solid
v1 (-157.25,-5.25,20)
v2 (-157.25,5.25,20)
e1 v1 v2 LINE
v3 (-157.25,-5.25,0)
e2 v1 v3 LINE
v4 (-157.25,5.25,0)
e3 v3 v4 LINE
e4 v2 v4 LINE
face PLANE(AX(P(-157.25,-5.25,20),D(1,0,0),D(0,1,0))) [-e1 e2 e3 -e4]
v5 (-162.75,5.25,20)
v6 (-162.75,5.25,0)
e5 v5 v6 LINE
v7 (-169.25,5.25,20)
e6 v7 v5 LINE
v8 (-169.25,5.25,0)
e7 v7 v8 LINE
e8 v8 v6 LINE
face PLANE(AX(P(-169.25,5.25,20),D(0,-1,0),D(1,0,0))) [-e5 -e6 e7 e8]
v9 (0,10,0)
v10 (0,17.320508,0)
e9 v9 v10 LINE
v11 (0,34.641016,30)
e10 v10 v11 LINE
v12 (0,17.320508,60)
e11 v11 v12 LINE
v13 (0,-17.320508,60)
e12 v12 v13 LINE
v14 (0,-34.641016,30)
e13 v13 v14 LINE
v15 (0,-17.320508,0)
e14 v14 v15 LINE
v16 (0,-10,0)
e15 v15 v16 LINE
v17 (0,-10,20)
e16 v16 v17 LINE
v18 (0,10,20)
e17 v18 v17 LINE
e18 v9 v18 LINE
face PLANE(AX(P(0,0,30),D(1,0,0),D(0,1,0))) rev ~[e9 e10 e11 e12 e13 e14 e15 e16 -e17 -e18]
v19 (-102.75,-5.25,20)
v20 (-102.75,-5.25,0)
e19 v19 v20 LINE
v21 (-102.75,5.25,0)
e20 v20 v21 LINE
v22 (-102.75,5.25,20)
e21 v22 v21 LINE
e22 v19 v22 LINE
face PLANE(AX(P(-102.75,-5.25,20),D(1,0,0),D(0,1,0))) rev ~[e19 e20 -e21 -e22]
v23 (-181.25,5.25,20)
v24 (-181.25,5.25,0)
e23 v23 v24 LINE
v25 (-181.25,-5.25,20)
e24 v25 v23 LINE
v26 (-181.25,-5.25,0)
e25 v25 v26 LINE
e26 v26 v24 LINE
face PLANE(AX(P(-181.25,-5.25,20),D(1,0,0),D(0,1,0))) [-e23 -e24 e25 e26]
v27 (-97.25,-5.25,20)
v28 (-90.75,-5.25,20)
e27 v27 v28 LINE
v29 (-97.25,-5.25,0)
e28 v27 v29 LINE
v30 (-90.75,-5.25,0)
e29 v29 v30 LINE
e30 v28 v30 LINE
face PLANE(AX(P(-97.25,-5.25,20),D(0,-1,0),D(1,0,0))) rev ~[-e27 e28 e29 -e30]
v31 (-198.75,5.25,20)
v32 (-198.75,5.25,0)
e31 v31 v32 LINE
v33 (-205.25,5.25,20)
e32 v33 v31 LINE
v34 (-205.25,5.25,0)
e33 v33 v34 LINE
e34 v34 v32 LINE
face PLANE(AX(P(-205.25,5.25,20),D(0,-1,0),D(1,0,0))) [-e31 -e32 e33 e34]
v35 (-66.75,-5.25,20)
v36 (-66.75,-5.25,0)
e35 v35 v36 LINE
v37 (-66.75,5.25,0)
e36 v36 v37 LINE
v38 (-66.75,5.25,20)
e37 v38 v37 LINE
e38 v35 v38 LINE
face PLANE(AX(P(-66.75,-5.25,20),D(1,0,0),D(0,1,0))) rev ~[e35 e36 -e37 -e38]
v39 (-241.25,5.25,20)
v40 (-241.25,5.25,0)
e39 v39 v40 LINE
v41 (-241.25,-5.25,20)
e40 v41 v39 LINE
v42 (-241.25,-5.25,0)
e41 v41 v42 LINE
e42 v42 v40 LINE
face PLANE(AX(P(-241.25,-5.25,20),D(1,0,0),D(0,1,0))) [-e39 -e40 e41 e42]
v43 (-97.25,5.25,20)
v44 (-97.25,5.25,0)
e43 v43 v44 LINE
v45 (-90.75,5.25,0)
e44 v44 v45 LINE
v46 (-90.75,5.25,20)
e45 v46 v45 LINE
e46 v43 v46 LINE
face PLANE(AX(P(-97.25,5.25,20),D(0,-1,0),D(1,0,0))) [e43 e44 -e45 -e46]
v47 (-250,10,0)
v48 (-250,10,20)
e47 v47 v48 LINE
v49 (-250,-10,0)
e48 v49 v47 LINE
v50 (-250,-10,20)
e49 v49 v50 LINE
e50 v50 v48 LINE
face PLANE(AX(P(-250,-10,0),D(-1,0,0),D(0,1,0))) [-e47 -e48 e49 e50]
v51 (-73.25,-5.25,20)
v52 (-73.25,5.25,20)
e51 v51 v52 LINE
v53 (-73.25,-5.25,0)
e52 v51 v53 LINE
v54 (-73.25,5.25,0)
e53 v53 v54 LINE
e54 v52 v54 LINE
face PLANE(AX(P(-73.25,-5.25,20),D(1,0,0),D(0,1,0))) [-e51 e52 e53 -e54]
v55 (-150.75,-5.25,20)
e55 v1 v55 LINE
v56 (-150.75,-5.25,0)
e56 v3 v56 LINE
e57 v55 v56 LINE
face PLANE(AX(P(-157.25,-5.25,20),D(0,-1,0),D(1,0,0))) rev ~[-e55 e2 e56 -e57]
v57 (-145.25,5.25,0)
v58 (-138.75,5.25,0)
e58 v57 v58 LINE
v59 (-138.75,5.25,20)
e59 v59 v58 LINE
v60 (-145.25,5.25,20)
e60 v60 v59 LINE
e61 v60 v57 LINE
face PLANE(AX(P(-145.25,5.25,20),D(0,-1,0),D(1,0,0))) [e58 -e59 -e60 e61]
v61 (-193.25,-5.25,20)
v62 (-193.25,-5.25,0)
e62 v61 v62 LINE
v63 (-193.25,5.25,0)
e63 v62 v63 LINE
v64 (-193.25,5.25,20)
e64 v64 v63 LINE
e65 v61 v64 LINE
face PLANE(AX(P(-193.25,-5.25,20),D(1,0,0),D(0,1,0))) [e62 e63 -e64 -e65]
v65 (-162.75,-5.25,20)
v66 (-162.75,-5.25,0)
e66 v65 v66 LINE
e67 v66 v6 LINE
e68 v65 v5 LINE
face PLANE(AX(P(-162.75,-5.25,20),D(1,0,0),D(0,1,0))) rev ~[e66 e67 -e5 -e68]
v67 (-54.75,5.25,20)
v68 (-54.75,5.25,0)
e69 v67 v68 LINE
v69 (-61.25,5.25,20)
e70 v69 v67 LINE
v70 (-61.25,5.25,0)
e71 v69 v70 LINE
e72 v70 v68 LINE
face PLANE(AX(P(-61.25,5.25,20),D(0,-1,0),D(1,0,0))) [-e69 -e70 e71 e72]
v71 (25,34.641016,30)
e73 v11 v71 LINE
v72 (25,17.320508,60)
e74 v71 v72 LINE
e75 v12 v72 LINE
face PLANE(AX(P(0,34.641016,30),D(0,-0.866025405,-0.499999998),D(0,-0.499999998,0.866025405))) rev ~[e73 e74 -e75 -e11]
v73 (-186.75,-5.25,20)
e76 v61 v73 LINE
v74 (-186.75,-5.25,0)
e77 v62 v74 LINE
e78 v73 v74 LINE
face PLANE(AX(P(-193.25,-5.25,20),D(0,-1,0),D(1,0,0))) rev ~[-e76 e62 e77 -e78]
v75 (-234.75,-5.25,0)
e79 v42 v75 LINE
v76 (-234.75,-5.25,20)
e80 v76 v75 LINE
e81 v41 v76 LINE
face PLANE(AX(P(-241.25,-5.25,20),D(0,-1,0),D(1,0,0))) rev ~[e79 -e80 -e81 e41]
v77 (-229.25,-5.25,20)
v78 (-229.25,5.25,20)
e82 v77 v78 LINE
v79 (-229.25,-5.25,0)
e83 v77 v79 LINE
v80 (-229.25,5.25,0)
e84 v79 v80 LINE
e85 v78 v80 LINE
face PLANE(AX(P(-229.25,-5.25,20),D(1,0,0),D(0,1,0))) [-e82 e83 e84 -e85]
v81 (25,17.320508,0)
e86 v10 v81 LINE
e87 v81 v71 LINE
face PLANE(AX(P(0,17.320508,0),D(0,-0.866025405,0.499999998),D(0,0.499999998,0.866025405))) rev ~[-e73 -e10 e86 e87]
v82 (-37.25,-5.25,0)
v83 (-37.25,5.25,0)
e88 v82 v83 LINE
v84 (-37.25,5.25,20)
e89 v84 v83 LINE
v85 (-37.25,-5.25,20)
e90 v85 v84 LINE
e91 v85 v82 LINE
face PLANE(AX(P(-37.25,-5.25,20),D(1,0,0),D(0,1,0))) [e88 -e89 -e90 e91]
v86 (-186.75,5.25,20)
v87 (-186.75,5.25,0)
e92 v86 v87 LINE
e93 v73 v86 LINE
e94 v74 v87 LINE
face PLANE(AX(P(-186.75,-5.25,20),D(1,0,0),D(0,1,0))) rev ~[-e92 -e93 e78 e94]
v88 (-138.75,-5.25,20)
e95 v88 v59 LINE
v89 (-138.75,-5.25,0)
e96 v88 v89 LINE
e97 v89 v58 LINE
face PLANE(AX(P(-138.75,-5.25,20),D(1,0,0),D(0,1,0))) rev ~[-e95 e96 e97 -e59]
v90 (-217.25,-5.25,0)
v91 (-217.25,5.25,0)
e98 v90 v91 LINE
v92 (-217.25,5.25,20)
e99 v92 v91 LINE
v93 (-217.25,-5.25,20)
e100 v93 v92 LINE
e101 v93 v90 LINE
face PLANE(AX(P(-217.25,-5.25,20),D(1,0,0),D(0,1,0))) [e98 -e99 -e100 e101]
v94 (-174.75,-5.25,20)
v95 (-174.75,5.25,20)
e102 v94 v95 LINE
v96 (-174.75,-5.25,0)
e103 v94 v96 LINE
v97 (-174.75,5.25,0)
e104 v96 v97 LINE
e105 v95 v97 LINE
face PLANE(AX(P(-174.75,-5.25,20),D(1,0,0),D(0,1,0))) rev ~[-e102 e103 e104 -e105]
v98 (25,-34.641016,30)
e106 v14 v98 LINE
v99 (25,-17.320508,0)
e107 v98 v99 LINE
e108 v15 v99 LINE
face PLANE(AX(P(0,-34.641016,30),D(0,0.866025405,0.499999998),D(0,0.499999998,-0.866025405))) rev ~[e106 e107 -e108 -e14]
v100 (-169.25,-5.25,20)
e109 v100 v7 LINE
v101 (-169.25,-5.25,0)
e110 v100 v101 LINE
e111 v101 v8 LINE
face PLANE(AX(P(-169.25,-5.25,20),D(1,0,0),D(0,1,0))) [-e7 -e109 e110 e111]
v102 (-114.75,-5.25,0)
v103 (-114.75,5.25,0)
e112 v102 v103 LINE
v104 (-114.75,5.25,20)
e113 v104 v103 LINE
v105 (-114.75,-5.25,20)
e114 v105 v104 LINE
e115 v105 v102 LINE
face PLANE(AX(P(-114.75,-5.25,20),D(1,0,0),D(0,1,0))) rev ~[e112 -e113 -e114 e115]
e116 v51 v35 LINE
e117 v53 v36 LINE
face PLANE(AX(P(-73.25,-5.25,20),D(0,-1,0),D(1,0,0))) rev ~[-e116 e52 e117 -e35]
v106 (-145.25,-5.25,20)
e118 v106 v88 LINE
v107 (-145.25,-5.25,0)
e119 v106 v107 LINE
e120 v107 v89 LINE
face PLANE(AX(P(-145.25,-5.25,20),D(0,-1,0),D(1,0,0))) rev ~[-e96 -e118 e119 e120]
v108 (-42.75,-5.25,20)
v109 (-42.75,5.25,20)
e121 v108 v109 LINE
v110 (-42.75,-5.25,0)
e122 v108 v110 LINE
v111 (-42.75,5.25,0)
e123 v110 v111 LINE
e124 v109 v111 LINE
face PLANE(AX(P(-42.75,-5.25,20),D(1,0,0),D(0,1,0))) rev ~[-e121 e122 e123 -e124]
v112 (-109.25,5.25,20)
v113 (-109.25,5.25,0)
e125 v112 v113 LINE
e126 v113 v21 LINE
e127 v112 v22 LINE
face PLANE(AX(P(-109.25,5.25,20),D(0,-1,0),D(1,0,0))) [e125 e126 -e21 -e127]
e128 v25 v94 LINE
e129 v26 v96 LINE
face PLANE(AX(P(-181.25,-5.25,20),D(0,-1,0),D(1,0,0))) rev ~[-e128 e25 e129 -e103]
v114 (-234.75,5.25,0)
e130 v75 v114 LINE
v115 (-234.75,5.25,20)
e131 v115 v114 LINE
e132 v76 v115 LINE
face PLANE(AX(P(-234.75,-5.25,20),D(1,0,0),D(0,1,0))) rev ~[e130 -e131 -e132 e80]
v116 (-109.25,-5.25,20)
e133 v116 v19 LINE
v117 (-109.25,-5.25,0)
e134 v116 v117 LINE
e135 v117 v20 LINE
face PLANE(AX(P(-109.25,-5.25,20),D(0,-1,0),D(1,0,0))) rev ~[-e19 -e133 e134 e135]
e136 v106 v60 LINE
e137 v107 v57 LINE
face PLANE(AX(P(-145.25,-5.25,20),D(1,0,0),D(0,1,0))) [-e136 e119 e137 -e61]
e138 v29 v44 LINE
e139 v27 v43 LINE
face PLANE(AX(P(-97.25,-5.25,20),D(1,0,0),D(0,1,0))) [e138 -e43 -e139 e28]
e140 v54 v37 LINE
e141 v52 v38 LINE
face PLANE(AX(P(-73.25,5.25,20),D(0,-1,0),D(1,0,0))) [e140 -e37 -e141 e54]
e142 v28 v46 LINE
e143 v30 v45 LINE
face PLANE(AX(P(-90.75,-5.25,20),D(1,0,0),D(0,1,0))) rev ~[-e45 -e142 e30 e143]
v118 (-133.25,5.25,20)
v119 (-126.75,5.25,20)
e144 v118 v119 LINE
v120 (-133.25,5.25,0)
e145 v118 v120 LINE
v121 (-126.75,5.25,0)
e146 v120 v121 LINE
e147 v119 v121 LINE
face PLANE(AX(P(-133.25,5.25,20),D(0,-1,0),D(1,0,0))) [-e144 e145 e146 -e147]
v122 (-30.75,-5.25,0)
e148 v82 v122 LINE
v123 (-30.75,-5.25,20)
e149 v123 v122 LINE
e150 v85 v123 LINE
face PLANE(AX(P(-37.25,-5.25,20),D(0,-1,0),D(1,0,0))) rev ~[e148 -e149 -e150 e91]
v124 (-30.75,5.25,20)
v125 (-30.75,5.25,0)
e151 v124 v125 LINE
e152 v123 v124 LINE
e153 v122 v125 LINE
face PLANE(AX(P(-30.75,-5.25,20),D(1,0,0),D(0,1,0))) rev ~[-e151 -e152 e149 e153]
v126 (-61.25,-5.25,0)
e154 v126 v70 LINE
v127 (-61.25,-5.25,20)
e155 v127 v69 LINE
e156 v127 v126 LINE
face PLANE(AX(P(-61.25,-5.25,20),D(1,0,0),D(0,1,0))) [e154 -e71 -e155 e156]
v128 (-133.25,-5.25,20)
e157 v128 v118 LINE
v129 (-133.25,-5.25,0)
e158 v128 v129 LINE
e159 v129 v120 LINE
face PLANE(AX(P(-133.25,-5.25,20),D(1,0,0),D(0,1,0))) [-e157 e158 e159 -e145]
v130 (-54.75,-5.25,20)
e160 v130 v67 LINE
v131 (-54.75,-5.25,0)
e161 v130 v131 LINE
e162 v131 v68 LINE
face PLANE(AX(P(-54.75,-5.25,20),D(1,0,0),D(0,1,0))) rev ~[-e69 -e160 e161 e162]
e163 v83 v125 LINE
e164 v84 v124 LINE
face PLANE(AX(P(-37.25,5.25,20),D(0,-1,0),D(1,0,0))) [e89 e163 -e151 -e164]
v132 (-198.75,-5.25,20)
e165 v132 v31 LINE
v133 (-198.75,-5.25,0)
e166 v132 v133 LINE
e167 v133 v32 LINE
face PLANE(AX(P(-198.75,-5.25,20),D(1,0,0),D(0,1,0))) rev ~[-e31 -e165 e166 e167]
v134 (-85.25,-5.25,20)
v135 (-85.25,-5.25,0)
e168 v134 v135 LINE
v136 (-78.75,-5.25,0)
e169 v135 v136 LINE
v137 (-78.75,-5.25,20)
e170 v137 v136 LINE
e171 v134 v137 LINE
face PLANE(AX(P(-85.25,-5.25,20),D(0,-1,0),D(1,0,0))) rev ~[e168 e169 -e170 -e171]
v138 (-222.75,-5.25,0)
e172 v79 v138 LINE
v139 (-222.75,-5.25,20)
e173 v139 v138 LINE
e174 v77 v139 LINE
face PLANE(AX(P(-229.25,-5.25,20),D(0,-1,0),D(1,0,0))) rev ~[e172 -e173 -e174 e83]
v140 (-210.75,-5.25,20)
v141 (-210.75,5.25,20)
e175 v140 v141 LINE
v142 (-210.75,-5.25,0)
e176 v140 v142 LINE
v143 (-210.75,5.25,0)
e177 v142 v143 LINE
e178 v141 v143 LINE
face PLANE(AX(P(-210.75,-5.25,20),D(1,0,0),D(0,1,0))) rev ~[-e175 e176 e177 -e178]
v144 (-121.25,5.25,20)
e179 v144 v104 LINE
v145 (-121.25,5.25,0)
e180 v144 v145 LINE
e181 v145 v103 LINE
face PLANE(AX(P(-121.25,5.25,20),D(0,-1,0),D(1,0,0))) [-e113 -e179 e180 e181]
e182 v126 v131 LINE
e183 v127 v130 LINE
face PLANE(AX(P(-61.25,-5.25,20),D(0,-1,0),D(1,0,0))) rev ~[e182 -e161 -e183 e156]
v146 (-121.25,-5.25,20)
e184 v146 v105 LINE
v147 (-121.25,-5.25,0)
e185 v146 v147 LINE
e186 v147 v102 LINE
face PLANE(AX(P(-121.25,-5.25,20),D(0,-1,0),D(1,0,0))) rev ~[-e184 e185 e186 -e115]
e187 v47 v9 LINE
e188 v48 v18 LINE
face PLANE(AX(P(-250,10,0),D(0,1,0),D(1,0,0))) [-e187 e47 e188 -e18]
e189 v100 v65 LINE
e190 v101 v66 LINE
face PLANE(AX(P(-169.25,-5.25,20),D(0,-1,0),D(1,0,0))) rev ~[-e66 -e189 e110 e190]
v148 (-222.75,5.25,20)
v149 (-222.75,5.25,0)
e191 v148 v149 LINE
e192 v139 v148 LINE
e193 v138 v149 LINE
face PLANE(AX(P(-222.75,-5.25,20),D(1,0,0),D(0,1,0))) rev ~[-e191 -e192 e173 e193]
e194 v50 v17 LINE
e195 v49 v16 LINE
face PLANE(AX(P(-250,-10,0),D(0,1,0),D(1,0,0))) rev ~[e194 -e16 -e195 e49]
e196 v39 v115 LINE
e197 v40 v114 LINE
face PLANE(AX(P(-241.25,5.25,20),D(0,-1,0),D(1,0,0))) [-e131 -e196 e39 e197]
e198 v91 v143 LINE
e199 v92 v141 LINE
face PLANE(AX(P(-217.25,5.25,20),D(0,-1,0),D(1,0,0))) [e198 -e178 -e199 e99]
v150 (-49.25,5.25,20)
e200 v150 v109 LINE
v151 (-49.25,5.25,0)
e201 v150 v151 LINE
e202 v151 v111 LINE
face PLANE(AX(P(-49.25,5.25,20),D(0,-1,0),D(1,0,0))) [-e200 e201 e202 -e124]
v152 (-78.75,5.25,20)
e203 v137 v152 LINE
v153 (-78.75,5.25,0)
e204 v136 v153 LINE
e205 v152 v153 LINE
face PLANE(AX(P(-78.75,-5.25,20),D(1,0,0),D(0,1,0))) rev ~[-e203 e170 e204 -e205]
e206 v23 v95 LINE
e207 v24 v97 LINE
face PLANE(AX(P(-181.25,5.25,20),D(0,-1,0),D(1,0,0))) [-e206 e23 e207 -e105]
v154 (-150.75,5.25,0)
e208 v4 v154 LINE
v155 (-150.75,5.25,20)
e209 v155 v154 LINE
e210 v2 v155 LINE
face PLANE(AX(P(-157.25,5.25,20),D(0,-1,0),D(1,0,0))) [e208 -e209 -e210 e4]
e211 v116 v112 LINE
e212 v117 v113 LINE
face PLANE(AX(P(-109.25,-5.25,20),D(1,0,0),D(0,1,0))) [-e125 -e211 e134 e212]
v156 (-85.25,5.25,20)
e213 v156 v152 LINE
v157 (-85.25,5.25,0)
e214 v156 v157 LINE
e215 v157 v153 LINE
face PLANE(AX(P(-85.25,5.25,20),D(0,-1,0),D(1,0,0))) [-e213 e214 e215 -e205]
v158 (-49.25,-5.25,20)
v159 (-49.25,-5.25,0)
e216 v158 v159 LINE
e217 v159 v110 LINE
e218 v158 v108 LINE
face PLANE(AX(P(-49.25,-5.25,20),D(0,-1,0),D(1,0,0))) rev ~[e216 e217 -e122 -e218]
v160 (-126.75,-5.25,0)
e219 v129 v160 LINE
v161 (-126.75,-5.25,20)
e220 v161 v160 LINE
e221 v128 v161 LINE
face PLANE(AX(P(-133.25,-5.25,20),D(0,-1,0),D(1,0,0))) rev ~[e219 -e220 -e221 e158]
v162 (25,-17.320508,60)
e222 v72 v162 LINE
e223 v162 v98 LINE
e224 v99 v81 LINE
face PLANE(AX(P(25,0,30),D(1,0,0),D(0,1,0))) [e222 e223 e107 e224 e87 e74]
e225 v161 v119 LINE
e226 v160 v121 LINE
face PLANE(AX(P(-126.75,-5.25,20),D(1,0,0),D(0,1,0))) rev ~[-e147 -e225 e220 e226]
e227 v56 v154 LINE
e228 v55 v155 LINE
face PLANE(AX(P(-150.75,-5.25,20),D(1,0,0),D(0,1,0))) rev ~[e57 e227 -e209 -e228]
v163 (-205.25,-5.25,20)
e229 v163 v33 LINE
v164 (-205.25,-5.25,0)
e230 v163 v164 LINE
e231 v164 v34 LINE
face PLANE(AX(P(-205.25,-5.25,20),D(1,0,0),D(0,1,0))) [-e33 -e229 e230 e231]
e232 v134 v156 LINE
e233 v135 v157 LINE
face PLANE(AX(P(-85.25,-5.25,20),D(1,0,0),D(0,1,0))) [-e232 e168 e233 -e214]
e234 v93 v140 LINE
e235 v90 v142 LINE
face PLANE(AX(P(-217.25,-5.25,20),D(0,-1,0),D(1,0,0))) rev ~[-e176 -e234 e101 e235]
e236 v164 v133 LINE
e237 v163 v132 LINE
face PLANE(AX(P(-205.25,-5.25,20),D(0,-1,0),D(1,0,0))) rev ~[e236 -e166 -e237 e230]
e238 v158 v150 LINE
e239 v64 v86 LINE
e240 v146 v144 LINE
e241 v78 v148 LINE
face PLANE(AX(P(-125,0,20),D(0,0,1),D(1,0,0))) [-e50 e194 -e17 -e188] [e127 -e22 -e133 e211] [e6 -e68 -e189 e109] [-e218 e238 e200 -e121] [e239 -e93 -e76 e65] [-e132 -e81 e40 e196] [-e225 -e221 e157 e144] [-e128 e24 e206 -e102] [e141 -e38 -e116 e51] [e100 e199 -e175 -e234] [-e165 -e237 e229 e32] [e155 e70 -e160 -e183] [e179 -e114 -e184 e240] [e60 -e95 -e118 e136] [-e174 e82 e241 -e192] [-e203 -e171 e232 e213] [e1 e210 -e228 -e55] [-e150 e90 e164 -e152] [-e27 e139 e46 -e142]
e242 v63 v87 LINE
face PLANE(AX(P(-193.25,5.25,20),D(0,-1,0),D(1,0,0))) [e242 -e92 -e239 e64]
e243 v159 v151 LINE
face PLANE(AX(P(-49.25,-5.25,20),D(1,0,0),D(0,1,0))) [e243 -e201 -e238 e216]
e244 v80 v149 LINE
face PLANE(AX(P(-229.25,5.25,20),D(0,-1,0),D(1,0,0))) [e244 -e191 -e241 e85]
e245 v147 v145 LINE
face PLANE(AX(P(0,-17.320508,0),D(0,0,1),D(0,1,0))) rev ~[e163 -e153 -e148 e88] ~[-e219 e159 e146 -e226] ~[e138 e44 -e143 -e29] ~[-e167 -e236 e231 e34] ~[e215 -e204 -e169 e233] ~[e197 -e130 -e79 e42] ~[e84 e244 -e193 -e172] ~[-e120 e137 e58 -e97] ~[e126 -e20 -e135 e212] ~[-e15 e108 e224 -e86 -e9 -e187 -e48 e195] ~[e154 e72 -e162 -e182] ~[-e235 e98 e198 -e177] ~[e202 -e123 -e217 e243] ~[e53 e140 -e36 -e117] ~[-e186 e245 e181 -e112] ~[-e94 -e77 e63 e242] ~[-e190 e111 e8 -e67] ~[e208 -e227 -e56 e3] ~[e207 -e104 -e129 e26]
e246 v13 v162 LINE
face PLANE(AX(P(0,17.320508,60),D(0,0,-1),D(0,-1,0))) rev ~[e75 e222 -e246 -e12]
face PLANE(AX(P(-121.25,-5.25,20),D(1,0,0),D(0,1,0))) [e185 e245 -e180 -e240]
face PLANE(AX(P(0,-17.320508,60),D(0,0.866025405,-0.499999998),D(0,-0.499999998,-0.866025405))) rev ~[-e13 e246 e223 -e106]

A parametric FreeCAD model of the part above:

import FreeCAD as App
import Part
import Sketcher
Q = App.Units.Quantity

doc = App.newDocument("Part")
params = doc.addObject("Spreadsheet::Sheet", "Params")
for row, (alias, value) in enumerate([
    ("pad1_length", "25 mm"),
    ("sketch2_width", "250 mm"),
    ("sketch2_height", "20 mm"),
    ("pad2_length", "20 mm"),
    ("sketch3_width", "6.5 mm"),
    ("sketch3_height", "10.5 mm"),
    ("pocket1_length", "100 mm"),
    ("pad3_length", "20 mm"),
], start=1):
    params.set(f"A{row}", alias)
    params.set(f"B{row}", "=" + value)
    params.setAlias(f"B{row}", alias)

body = doc.addObject("PartDesign::Body", "Body")

sketch1 = doc.addObject("Sketcher::SketchObject", "Sketch")
body.addObject(sketch1)
sketch1.AttachmentSupport = (doc.YZ_Plane, [""])
sketch1.MapMode = "FlatFace"
sketch1.addGeometry(Part.LineSegment(App.Vector(-17, 0, 0), App.Vector(17, 0, 0)), False)
sketch1.addGeometry(Part.LineSegment(App.Vector(17, 0, 0), App.Vector(35, 30, 0)), False)
sketch1.addGeometry(Part.LineSegment(App.Vector(35, 30, 0), App.Vector(17, 60, 0)), False)
sketch1.addGeometry(Part.LineSegment(App.Vector(17, 60, 0), App.Vector(-17, 60, 0)), False)
sketch1.addGeometry(Part.LineSegment(App.Vector(-17, 60, 0), App.Vector(-35, 30, 0)), False)
sketch1.addGeometry(Part.LineSegment(App.Vector(-35, 30, 0), App.Vector(-17, 0, 0)), False)
sketch1.addConstraint(Sketcher.Constraint("Coincident", 0, 2, 1, 1))
sketch1.addConstraint(Sketcher.Constraint("Coincident", 1, 2, 2, 1))
sketch1.addConstraint(Sketcher.Constraint("Coincident", 2, 2, 3, 1))
sketch1.addConstraint(Sketcher.Constraint("Coincident", 3, 2, 4, 1))
sketch1.addConstraint(Sketcher.Constraint("Coincident", 4, 2, 5, 1))
sketch1.addConstraint(Sketcher.Constraint("Coincident", 5, 2, 0, 1))
sketch1.addConstraint(Sketcher.Constraint("Horizontal", 0))
sketch1.addConstraint(Sketcher.Constraint("Horizontal", 3))
sketch1.addConstraint(Sketcher.Constraint("Symmetric", 0, 2, 5, 2, -1, 1))
sketch1.addConstraint(Sketcher.Constraint("Symmetric", 1, 2, 4, 2, -2))
sketch1.addConstraint(Sketcher.Constraint("Parallel", 1, 4))
sketch1.addConstraint(Sketcher.Constraint("Parallel", 2, 5))
sketch1.addConstraint(Sketcher.Constraint("Vertical", 0, 2, 2, 2))
sketch1.addConstraint(Sketcher.Constraint("Angle", 1, Q("60 deg")))
sketch1.addConstraint(Sketcher.Constraint("DistanceY", -1, 1, 1, 2, 30.0))
sketch1.addConstraint(Sketcher.Constraint("DistanceX", 0, 1, 0, 2, 34.641016))
pad1 = doc.addObject("PartDesign::Pad", "Pad")
body.addObject(pad1)
pad1.Profile = sketch1
pad1.setExpression("Length", "Params.pad1_length")

sketch2 = doc.addObject("Sketcher::SketchObject", "Sketch001")
body.addObject(sketch2)
sketch2.AttachmentSupport = (doc.XY_Plane, [""])
sketch2.MapMode = "FlatFace"
sketch2.addGeometry(Part.LineSegment(App.Vector(-250, 10, 0), App.Vector(-250, -10, 0)), False)
sketch2.addGeometry(Part.LineSegment(App.Vector(-250, -10, 0), App.Vector(0, -10, 0)), False)
sketch2.addGeometry(Part.LineSegment(App.Vector(0, -10, 0), App.Vector(0, 10, 0)), False)
sketch2.addGeometry(Part.LineSegment(App.Vector(0, 10, 0), App.Vector(-250, 10, 0)), False)
sketch2.addConstraint(Sketcher.Constraint("Coincident", 0, 2, 1, 1))
sketch2.addConstraint(Sketcher.Constraint("Coincident", 1, 2, 2, 1))
sketch2.addConstraint(Sketcher.Constraint("Coincident", 2, 2, 3, 1))
sketch2.addConstraint(Sketcher.Constraint("Coincident", 3, 2, 0, 1))
sketch2.addConstraint(Sketcher.Constraint("Vertical", 0))
sketch2.addConstraint(Sketcher.Constraint("Horizontal", 1))
sketch2.addConstraint(Sketcher.Constraint("Vertical", 2))
sketch2.addConstraint(Sketcher.Constraint("Horizontal", 3))
sketch2.addConstraint(Sketcher.Constraint("Symmetric", 1, 2, 2, 2, -1, 1))
sketch2.addConstraint(Sketcher.Constraint("DistanceX", 1, 1, 1, 2, 250.0))
sketch2.addConstraint(Sketcher.Constraint("DistanceY", 0, 2, 0, 1, 20.0))
sketch2.setExpression("Constraints[9]", "Params.sketch2_width")
sketch2.setExpression("Constraints[10]", "Params.sketch2_height")
pad2 = doc.addObject("PartDesign::Pad", "Pad001")
body.addObject(pad2)
pad2.Profile = sketch2
pad2.setExpression("Length", "Params.pad2_length")

sketch3 = doc.addObject("Sketcher::SketchObject", "Sketch002")
body.addObject(sketch3)
sketch3.AttachmentSupport = (doc.XY_Plane, [""])
sketch3.MapMode = "FlatFace"
sketch3.AttachmentOffset = App.Placement(App.Vector(0, 0, 20), App.Rotation())
sketch3.addGeometry(Part.LineSegment(App.Vector(-13, 5, 0), App.Vector(-13, -5, 0)), False)
sketch3.addGeometry(Part.LineSegment(App.Vector(-13, -5, 0), App.Vector(-7, -5, 0)), False)
sketch3.addGeometry(Part.LineSegment(App.Vector(-7, -5, 0), App.Vector(-7, 5, 0)), False)
sketch3.addGeometry(Part.LineSegment(App.Vector(-7, 5, 0), App.Vector(-13, 5, 0)), False)
sketch3.addGeometry(Part.LineSegment(App.Vector(-25, 5, 0), App.Vector(-25, -5, 0)), False)
sketch3.addGeometry(Part.LineSegment(App.Vector(-25, -5, 0), App.Vector(-19, -5, 0)), False)
sketch3.addGeometry(Part.LineSegment(App.Vector(-19, -5, 0), App.Vector(-19, 5, 0)), False)
sketch3.addGeometry(Part.LineSegment(App.Vector(-19, 5, 0), App.Vector(-25, 5, 0)), False)
sketch3.addGeometry(Part.LineSegment(App.Vector(-37, 5, 0), App.Vector(-37, -5, 0)), False)
sketch3.addGeometry(Part.LineSegment(App.Vector(-37, -5, 0), App.Vector(-31, -5, 0)), False)
sketch3.addGeometry(Part.LineSegment(App.Vector(-31, -5, 0), App.Vector(-31, 5, 0)), False)
sketch3.addGeometry(Part.LineSegment(App.Vector(-31, 5, 0), App.Vector(-37, 5, 0)), False)
sketch3.addGeometry(Part.LineSegment(App.Vector(-49, 5, 0), App.Vector(-49, -5, 0)), False)
sketch3.addGeometry(Part.LineSegment(App.Vector(-49, -5, 0), App.Vector(-43, -5, 0)), False)
sketch3.addGeometry(Part.LineSegment(App.Vector(-43, -5, 0), App.Vector(-43, 5, 0)), False)
sketch3.addGeometry(Part.LineSegment(App.Vector(-43, 5, 0), App.Vector(-49, 5, 0)), False)
sketch3.addGeometry(Part.LineSegment(App.Vector(-61, 5, 0), App.Vector(-61, -5, 0)), False)
sketch3.addGeometry(Part.LineSegment(App.Vector(-61, -5, 0), App.Vector(-55, -5, 0)), False)
sketch3.addGeometry(Part.LineSegment(App.Vector(-55, -5, 0), App.Vector(-55, 5, 0)), False)
sketch3.addGeometry(Part.LineSegment(App.Vector(-55, 5, 0), App.Vector(-61, 5, 0)), False)
sketch3.addGeometry(Part.LineSegment(App.Vector(-73, 5, 0), App.Vector(-73, -5, 0)), False)
sketch3.addGeometry(Part.LineSegment(App.Vector(-73, -5, 0), App.Vector(-67, -5, 0)), False)
sketch3.addGeometry(Part.LineSegment(App.Vector(-67, -5, 0), App.Vector(-67, 5, 0)), False)
sketch3.addGeometry(Part.LineSegment(App.Vector(-67, 5, 0), App.Vector(-73, 5, 0)), False)
sketch3.addGeometry(Part.LineSegment(App.Vector(-85, 5, 0), App.Vector(-85, -5, 0)), False)
sketch3.addGeometry(Part.LineSegment(App.Vector(-85, -5, 0), App.Vector(-79, -5, 0)), False)
sketch3.addGeometry(Part.LineSegment(App.Vector(-79, -5, 0), App.Vector(-79, 5, 0)), False)
sketch3.addGeometry(Part.LineSegment(App.Vector(-79, 5, 0), App.Vector(-85, 5, 0)), False)
sketch3.addGeometry(Part.LineSegment(App.Vector(-97, 5, 0), App.Vector(-97, -5, 0)), False)
sketch3.addGeometry(Part.LineSegment(App.Vector(-97, -5, 0), App.Vector(-91, -5, 0)), False)
sketch3.addGeometry(Part.LineSegment(App.Vector(-91, -5, 0), App.Vector(-91, 5, 0)), False)
sketch3.addGeometry(Part.LineSegment(App.Vector(-91, 5, 0), App.Vector(-97, 5, 0)), False)
sketch3.addGeometry(Part.LineSegment(App.Vector(-109, 5, 0), App.Vector(-109, -5, 0)), False)
sketch3.addGeometry(Part.LineSegment(App.Vector(-109, -5, 0), App.Vector(-103, -5, 0)), False)
sketch3.addGeometry(Part.LineSegment(App.Vector(-103, -5, 0), App.Vector(-103, 5, 0)), False)
sketch3.addGeometry(Part.LineSegment(App.Vector(-103, 5, 0), App.Vector(-109, 5, 0)), False)
sketch3.addGeometry(Part.LineSegment(App.Vector(-121, 5, 0), App.Vector(-121, -5, 0)), False)
sketch3.addGeometry(Part.LineSegment(App.Vector(-121, -5, 0), App.Vector(-115, -5, 0)), False)
sketch3.addGeometry(Part.LineSegment(App.Vector(-115, -5, 0), App.Vector(-115, 5, 0)), False)
sketch3.addGeometry(Part.LineSegment(App.Vector(-115, 5, 0), App.Vector(-121, 5, 0)), False)
sketch3.addGeometry(Part.LineSegment(App.Vector(-133, 5, 0), App.Vector(-133, -5, 0)), False)
sketch3.addGeometry(Part.LineSegment(App.Vector(-133, -5, 0), App.Vector(-127, -5, 0)), False)
sketch3.addGeometry(Part.LineSegment(App.Vector(-127, -5, 0), App.Vector(-127, 5, 0)), False)
sketch3.addGeometry(Part.LineSegment(App.Vector(-127, 5, 0), App.Vector(-133, 5, 0)), False)
sketch3.addGeometry(Part.LineSegment(App.Vector(-145, 5, 0), App.Vector(-145, -5, 0)), False)
sketch3.addGeometry(Part.LineSegment(App.Vector(-145, -5, 0), App.Vector(-139, -5, 0)), False)
sketch3.addGeometry(Part.LineSegment(App.Vector(-139, -5, 0), App.Vector(-139, 5, 0)), False)
sketch3.addGeometry(Part.LineSegment(App.Vector(-139, 5, 0), App.Vector(-145, 5, 0)), False)
sketch3.addGeometry(Part.LineSegment(App.Vector(-157, 5, 0), App.Vector(-157, -5, 0)), False)
sketch3.addGeometry(Part.LineSegment(App.Vector(-157, -5, 0), App.Vector(-151, -5, 0)), False)
sketch3.addGeometry(Part.LineSegment(App.Vector(-151, -5, 0), App.Vector(-151, 5, 0)), False)
sketch3.addGeometry(Part.LineSegment(App.Vector(-151, 5, 0), App.Vector(-157, 5, 0)), False)
sketch3.addGeometry(Part.LineSegment(App.Vector(-169, 5, 0), App.Vector(-169, -5, 0)), False)
sketch3.addGeometry(Part.LineSegment(App.Vector(-169, -5, 0), App.Vector(-163, -5, 0)), False)
sketch3.addGeometry(Part.LineSegment(App.Vector(-163, -5, 0), App.Vector(-163, 5, 0)), False)
sketch3.addGeometry(Part.LineSegment(App.Vector(-163, 5, 0), App.Vector(-169, 5, 0)), False)
sketch3.addGeometry(Part.LineSegment(App.Vector(-181, 5, 0), App.Vector(-181, -5, 0)), False)
sketch3.addGeometry(Part.LineSegment(App.Vector(-181, -5, 0), App.Vector(-175, -5, 0)), False)
sketch3.addGeometry(Part.LineSegment(App.Vector(-175, -5, 0), App.Vector(-175, 5, 0)), False)
sketch3.addGeometry(Part.LineSegment(App.Vector(-175, 5, 0), App.Vector(-181, 5, 0)), False)
sketch3.addGeometry(Part.LineSegment(App.Vector(-193, 5, 0), App.Vector(-193, -5, 0)), False)
sketch3.addGeometry(Part.LineSegment(App.Vector(-193, -5, 0), App.Vector(-187, -5, 0)), False)
sketch3.addGeometry(Part.LineSegment(App.Vector(-187, -5, 0), App.Vector(-187, 5, 0)), False)
sketch3.addGeometry(Part.LineSegment(App.Vector(-187, 5, 0), App.Vector(-193, 5, 0)), False)
sketch3.addGeometry(Part.LineSegment(App.Vector(-205, 5, 0), App.Vector(-205, -5, 0)), False)
sketch3.addGeometry(Part.LineSegment(App.Vector(-205, -5, 0), App.Vector(-199, -5, 0)), False)
sketch3.addGeometry(Part.LineSegment(App.Vector(-199, -5, 0), App.Vector(-199, 5, 0)), False)
sketch3.addGeometry(Part.LineSegment(App.Vector(-199, 5, 0), App.Vector(-205, 5, 0)), False)
sketch3.addGeometry(Part.LineSegment(App.Vector(-217, 5, 0), App.Vector(-217, -5, 0)), False)
sketch3.addGeometry(Part.LineSegment(App.Vector(-217, -5, 0), App.Vector(-211, -5, 0)), False)
sketch3.addGeometry(Part.LineSegment(App.Vector(-211, -5, 0), App.Vector(-211, 5, 0)), False)
sketch3.addGeometry(Part.LineSegment(App.Vector(-211, 5, 0), App.Vector(-217, 5, 0)), False)
sketch3.addGeometry(Part.LineSegment(App.Vector(-229, 5, 0), App.Vector(-229, -5, 0)), False)
sketch3.addGeometry(Part.LineSegment(App.Vector(-229, -5, 0), App.Vector(-223, -5, 0)), False)
sketch3.addGeometry(Part.LineSegment(App.Vector(-223, -5, 0), App.Vector(-223, 5, 0)), False)
sketch3.addGeometry(Part.LineSegment(App.Vector(-223, 5, 0), App.Vector(-229, 5, 0)), False)
sketch3.addGeometry(Part.LineSegment(App.Vector(-241, 5, 0), App.Vector(-241, -5, 0)), False)
sketch3.addGeometry(Part.LineSegment(App.Vector(-241, -5, 0), App.Vector(-235, -5, 0)), False)
sketch3.addGeometry(Part.LineSegment(App.Vector(-235, -5, 0), App.Vector(-235, 5, 0)), False)
sketch3.addGeometry(Part.LineSegment(App.Vector(-235, 5, 0), App.Vector(-241, 5, 0)), False)
sketch3.addConstraint(Sketcher.Constraint("Coincident", 0, 2, 1, 1))
sketch3.addConstraint(Sketcher.Constraint("Coincident", 1, 2, 2, 1))
sketch3.addConstraint(Sketcher.Constraint("Coincident", 2, 2, 3, 1))
sketch3.addConstraint(Sketcher.Constraint("Coincident", 3, 2, 0, 1))
sketch3.addConstraint(Sketcher.Constraint("Coincident", 4, 2, 5, 1))
sketch3.addConstraint(Sketcher.Constraint("Coincident", 5, 2, 6, 1))
sketch3.addConstraint(Sketcher.Constraint("Coincident", 6, 2, 7, 1))
sketch3.addConstraint(Sketcher.Constraint("Coincident", 7, 2, 4, 1))
sketch3.addConstraint(Sketcher.Constraint("Coincident", 8, 2, 9, 1))
sketch3.addConstraint(Sketcher.Constraint("Coincident", 9, 2, 10, 1))
sketch3.addConstraint(Sketcher.Constraint("Coincident", 10, 2, 11, 1))
sketch3.addConstraint(Sketcher.Constraint("Coincident", 11, 2, 8, 1))
sketch3.addConstraint(Sketcher.Constraint("Coincident", 12, 2, 13, 1))
sketch3.addConstraint(Sketcher.Constraint("Coincident", 13, 2, 14, 1))
sketch3.addConstraint(Sketcher.Constraint("Coincident", 14, 2, 15, 1))
sketch3.addConstraint(Sketcher.Constraint("Coincident", 15, 2, 12, 1))
sketch3.addConstraint(Sketcher.Constraint("Coincident", 16, 2, 17, 1))
sketch3.addConstraint(Sketcher.Constraint("Coincident", 17, 2, 18, 1))
sketch3.addConstraint(Sketcher.Constraint("Coincident", 18, 2, 19, 1))
sketch3.addConstraint(Sketcher.Constraint("Coincident", 19, 2, 16, 1))
sketch3.addConstraint(Sketcher.Constraint("Coincident", 20, 2, 21, 1))
sketch3.addConstraint(Sketcher.Constraint("Coincident", 21, 2, 22, 1))
sketch3.addConstraint(Sketcher.Constraint("Coincident", 22, 2, 23, 1))
sketch3.addConstraint(Sketcher.Constraint("Coincident", 23, 2, 20, 1))
sketch3.addConstraint(Sketcher.Constraint("Coincident", 24, 2, 25, 1))
sketch3.addConstraint(Sketcher.Constraint("Coincident", 25, 2, 26, 1))
sketch3.addConstraint(Sketcher.Constraint("Coincident", 26, 2, 27, 1))
sketch3.addConstraint(Sketcher.Constraint("Coincident", 27, 2, 24, 1))
sketch3.addConstraint(Sketcher.Constraint("Coincident", 28, 2, 29, 1))
sketch3.addConstraint(Sketcher.Constraint("Coincident", 29, 2, 30, 1))
sketch3.addConstraint(Sketcher.Constraint("Coincident", 30, 2, 31, 1))
sketch3.addConstraint(Sketcher.Constraint("Coincident", 31, 2, 28, 1))
sketch3.addConstraint(Sketcher.Constraint("Coincident", 32, 2, 33, 1))
sketch3.addConstraint(Sketcher.Constraint("Coincident", 33, 2, 34, 1))
sketch3.addConstraint(Sketcher.Constraint("Coincident", 34, 2, 35, 1))
sketch3.addConstraint(Sketcher.Constraint("Coincident", 35, 2, 32, 1))
sketch3.addConstraint(Sketcher.Constraint("Coincident", 36, 2, 37, 1))
sketch3.addConstraint(Sketcher.Constraint("Coincident", 37, 2, 38, 1))
sketch3.addConstraint(Sketcher.Constraint("Coincident", 38, 2, 39, 1))
sketch3.addConstraint(Sketcher.Constraint("Coincident", 39, 2, 36, 1))
sketch3.addConstraint(Sketcher.Constraint("Coincident", 40, 2, 41, 1))
sketch3.addConstraint(Sketcher.Constraint("Coincident", 41, 2, 42, 1))
sketch3.addConstraint(Sketcher.Constraint("Coincident", 42, 2, 43, 1))
sketch3.addConstraint(Sketcher.Constraint("Coincident", 43, 2, 40, 1))
sketch3.addConstraint(Sketcher.Constraint("Coincident", 44, 2, 45, 1))
sketch3.addConstraint(Sketcher.Constraint("Coincident", 45, 2, 46, 1))
sketch3.addConstraint(Sketcher.Constraint("Coincident", 46, 2, 47, 1))
sketch3.addConstraint(Sketcher.Constraint("Coincident", 47, 2, 44, 1))
sketch3.addConstraint(Sketcher.Constraint("Coincident", 48, 2, 49, 1))
sketch3.addConstraint(Sketcher.Constraint("Coincident", 49, 2, 50, 1))
sketch3.addConstraint(Sketcher.Constraint("Coincident", 50, 2, 51, 1))
sketch3.addConstraint(Sketcher.Constraint("Coincident", 51, 2, 48, 1))
sketch3.addConstraint(Sketcher.Constraint("Coincident", 52, 2, 53, 1))
sketch3.addConstraint(Sketcher.Constraint("Coincident", 53, 2, 54, 1))
sketch3.addConstraint(Sketcher.Constraint("Coincident", 54, 2, 55, 1))
sketch3.addConstraint(Sketcher.Constraint("Coincident", 55, 2, 52, 1))
sketch3.addConstraint(Sketcher.Constraint("Coincident", 56, 2, 57, 1))
sketch3.addConstraint(Sketcher.Constraint("Coincident", 57, 2, 58, 1))
sketch3.addConstraint(Sketcher.Constraint("Coincident", 58, 2, 59, 1))
sketch3.addConstraint(Sketcher.Constraint("Coincident", 59, 2, 56, 1))
sketch3.addConstraint(Sketcher.Constraint("Coincident", 60, 2, 61, 1))
sketch3.addConstraint(Sketcher.Constraint("Coincident", 61, 2, 62, 1))
sketch3.addConstraint(Sketcher.Constraint("Coincident", 62, 2, 63, 1))
sketch3.addConstraint(Sketcher.Constraint("Coincident", 63, 2, 60, 1))
sketch3.addConstraint(Sketcher.Constraint("Coincident", 64, 2, 65, 1))
sketch3.addConstraint(Sketcher.Constraint("Coincident", 65, 2, 66, 1))
sketch3.addConstraint(Sketcher.Constraint("Coincident", 66, 2, 67, 1))
sketch3.addConstraint(Sketcher.Constraint("Coincident", 67, 2, 64, 1))
sketch3.addConstraint(Sketcher.Constraint("Coincident", 68, 2, 69, 1))
sketch3.addConstraint(Sketcher.Constraint("Coincident", 69, 2, 70, 1))
sketch3.addConstraint(Sketcher.Constraint("Coincident", 70, 2, 71, 1))
sketch3.addConstraint(Sketcher.Constraint("Coincident", 71, 2, 68, 1))
sketch3.addConstraint(Sketcher.Constraint("Coincident", 72, 2, 73, 1))
sketch3.addConstraint(Sketcher.Constraint("Coincident", 73, 2, 74, 1))
sketch3.addConstraint(Sketcher.Constraint("Coincident", 74, 2, 75, 1))
sketch3.addConstraint(Sketcher.Constraint("Coincident", 75, 2, 72, 1))
sketch3.addConstraint(Sketcher.Constraint("Coincident", 76, 2, 77, 1))
sketch3.addConstraint(Sketcher.Constraint("Coincident", 77, 2, 78, 1))
sketch3.addConstraint(Sketcher.Constraint("Coincident", 78, 2, 79, 1))
sketch3.addConstraint(Sketcher.Constraint("Coincident", 79, 2, 76, 1))
sketch3.addConstraint(Sketcher.Constraint("Vertical", 0))
sketch3.addConstraint(Sketcher.Constraint("Horizontal", 1))
sketch3.addConstraint(Sketcher.Constraint("Vertical", 2))
sketch3.addConstraint(Sketcher.Constraint("Horizontal", 3))
sketch3.addConstraint(Sketcher.Constraint("Vertical", 4))
sketch3.addConstraint(Sketcher.Constraint("Horizontal", 5))
sketch3.addConstraint(Sketcher.Constraint("Vertical", 6))
sketch3.addConstraint(Sketcher.Constraint("Horizontal", 7))
sketch3.addConstraint(Sketcher.Constraint("Vertical", 8))
sketch3.addConstraint(Sketcher.Constraint("Horizontal", 9))
sketch3.addConstraint(Sketcher.Constraint("Vertical", 10))
sketch3.addConstraint(Sketcher.Constraint("Horizontal", 11))
sketch3.addConstraint(Sketcher.Constraint("Vertical", 12))
sketch3.addConstraint(Sketcher.Constraint("Horizontal", 13))
sketch3.addConstraint(Sketcher.Constraint("Vertical", 14))
sketch3.addConstraint(Sketcher.Constraint("Horizontal", 15))
sketch3.addConstraint(Sketcher.Constraint("Vertical", 16))
sketch3.addConstraint(Sketcher.Constraint("Horizontal", 17))
sketch3.addConstraint(Sketcher.Constraint("Vertical", 18))
sketch3.addConstraint(Sketcher.Constraint("Horizontal", 19))
sketch3.addConstraint(Sketcher.Constraint("Vertical", 20))
sketch3.addConstraint(Sketcher.Constraint("Horizontal", 21))
sketch3.addConstraint(Sketcher.Constraint("Vertical", 22))
sketch3.addConstraint(Sketcher.Constraint("Horizontal", 23))
sketch3.addConstraint(Sketcher.Constraint("Vertical", 24))
sketch3.addConstraint(Sketcher.Constraint("Horizontal", 25))
sketch3.addConstraint(Sketcher.Constraint("Vertical", 26))
sketch3.addConstraint(Sketcher.Constraint("Horizontal", 27))
sketch3.addConstraint(Sketcher.Constraint("Vertical", 28))
sketch3.addConstraint(Sketcher.Constraint("Horizontal", 29))
sketch3.addConstraint(Sketcher.Constraint("Vertical", 30))
sketch3.addConstraint(Sketcher.Constraint("Horizontal", 31))
sketch3.addConstraint(Sketcher.Constraint("Vertical", 32))
sketch3.addConstraint(Sketcher.Constraint("Horizontal", 33))
sketch3.addConstraint(Sketcher.Constraint("Vertical", 34))
sketch3.addConstraint(Sketcher.Constraint("Horizontal", 35))
sketch3.addConstraint(Sketcher.Constraint("Vertical", 36))
sketch3.addConstraint(Sketcher.Constraint("Horizontal", 37))
sketch3.addConstraint(Sketcher.Constraint("Vertical", 38))
sketch3.addConstraint(Sketcher.Constraint("Horizontal", 39))
sketch3.addConstraint(Sketcher.Constraint("Vertical", 40))
sketch3.addConstraint(Sketcher.Constraint("Horizontal", 41))
sketch3.addConstraint(Sketcher.Constraint("Vertical", 42))
sketch3.addConstraint(Sketcher.Constraint("Horizontal", 43))
sketch3.addConstraint(Sketcher.Constraint("Vertical", 44))
sketch3.addConstraint(Sketcher.Constraint("Horizontal", 45))
sketch3.addConstraint(Sketcher.Constraint("Vertical", 46))
sketch3.addConstraint(Sketcher.Constraint("Horizontal", 47))
sketch3.addConstraint(Sketcher.Constraint("Vertical", 48))
sketch3.addConstraint(Sketcher.Constraint("Horizontal", 49))
sketch3.addConstraint(Sketcher.Constraint("Vertical", 50))
sketch3.addConstraint(Sketcher.Constraint("Horizontal", 51))
sketch3.addConstraint(Sketcher.Constraint("Vertical", 52))
sketch3.addConstraint(Sketcher.Constraint("Horizontal", 53))
sketch3.addConstraint(Sketcher.Constraint("Vertical", 54))
sketch3.addConstraint(Sketcher.Constraint("Horizontal", 55))
sketch3.addConstraint(Sketcher.Constraint("Vertical", 56))
sketch3.addConstraint(Sketcher.Constraint("Horizontal", 57))
sketch3.addConstraint(Sketcher.Constraint("Vertical", 58))
sketch3.addConstraint(Sketcher.Constraint("Horizontal", 59))
sketch3.addConstraint(Sketcher.Constraint("Vertical", 60))
sketch3.addConstraint(Sketcher.Constraint("Horizontal", 61))
sketch3.addConstraint(Sketcher.Constraint("Vertical", 62))
sketch3.addConstraint(Sketcher.Constraint("Horizontal", 63))
sketch3.addConstraint(Sketcher.Constraint("Vertical", 64))
sketch3.addConstraint(Sketcher.Constraint("Horizontal", 65))
sketch3.addConstraint(Sketcher.Constraint("Vertical", 66))
sketch3.addConstraint(Sketcher.Constraint("Horizontal", 67))
sketch3.addConstraint(Sketcher.Constraint("Vertical", 68))
sketch3.addConstraint(Sketcher.Constraint("Horizontal", 69))
sketch3.addConstraint(Sketcher.Constraint("Vertical", 70))
sketch3.addConstraint(Sketcher.Constraint("Horizontal", 71))
sketch3.addConstraint(Sketcher.Constraint("Vertical", 72))
sketch3.addConstraint(Sketcher.Constraint("Horizontal", 73))
sketch3.addConstraint(Sketcher.Constraint("Vertical", 74))
sketch3.addConstraint(Sketcher.Constraint("Horizontal", 75))
sketch3.addConstraint(Sketcher.Constraint("Vertical", 76))
sketch3.addConstraint(Sketcher.Constraint("Horizontal", 77))
sketch3.addConstraint(Sketcher.Constraint("Vertical", 78))
sketch3.addConstraint(Sketcher.Constraint("Horizontal", 79))
sketch3.addConstraint(Sketcher.Constraint("Horizontal", 1, 2, 4, 2))
sketch3.addConstraint(Sketcher.Constraint("Horizontal", 3, 2, 6, 2))
sketch3.addConstraint(Sketcher.Constraint("Horizontal", 5, 2, 8, 2))
sketch3.addConstraint(Sketcher.Constraint("Horizontal", 7, 2, 10, 2))
sketch3.addConstraint(Sketcher.Constraint("Horizontal", 9, 2, 12, 2))
sketch3.addConstraint(Sketcher.Constraint("Horizontal", 11, 2, 14, 2))
sketch3.addConstraint(Sketcher.Constraint("Horizontal", 13, 2, 16, 2))
sketch3.addConstraint(Sketcher.Constraint("Horizontal", 15, 2, 18, 2))
sketch3.addConstraint(Sketcher.Constraint("Horizontal", 17, 2, 20, 2))
sketch3.addConstraint(Sketcher.Constraint("Horizontal", 19, 2, 22, 2))
sketch3.addConstraint(Sketcher.Constraint("Horizontal", 21, 2, 24, 2))
sketch3.addConstraint(Sketcher.Constraint("Horizontal", 23, 2, 26, 2))
sketch3.addConstraint(Sketcher.Constraint("Horizontal", 25, 2, 28, 2))
sketch3.addConstraint(Sketcher.Constraint("Horizontal", 27, 2, 30, 2))
sketch3.addConstraint(Sketcher.Constraint("Horizontal", 29, 2, 32, 2))
sketch3.addConstraint(Sketcher.Constraint("Horizontal", 31, 2, 34, 2))
sketch3.addConstraint(Sketcher.Constraint("Horizontal", 33, 2, 36, 2))
sketch3.addConstraint(Sketcher.Constraint("Horizontal", 35, 2, 38, 2))
sketch3.addConstraint(Sketcher.Constraint("Horizontal", 37, 2, 40, 2))
sketch3.addConstraint(Sketcher.Constraint("Horizontal", 39, 2, 42, 2))
sketch3.addConstraint(Sketcher.Constraint("Horizontal", 41, 2, 44, 2))
sketch3.addConstraint(Sketcher.Constraint("Horizontal", 43, 2, 46, 2))
sketch3.addConstraint(Sketcher.Constraint("Horizontal", 45, 2, 48, 2))
sketch3.addConstraint(Sketcher.Constraint("Horizontal", 47, 2, 50, 2))
sketch3.addConstraint(Sketcher.Constraint("Horizontal", 49, 2, 52, 2))
sketch3.addConstraint(Sketcher.Constraint("Horizontal", 51, 2, 54, 2))
sketch3.addConstraint(Sketcher.Constraint("Horizontal", 53, 2, 56, 2))
sketch3.addConstraint(Sketcher.Constraint("Horizontal", 55, 2, 58, 2))
sketch3.addConstraint(Sketcher.Constraint("Horizontal", 57, 2, 60, 2))
sketch3.addConstraint(Sketcher.Constraint("Horizontal", 59, 2, 62, 2))
sketch3.addConstraint(Sketcher.Constraint("Horizontal", 61, 2, 64, 2))
sketch3.addConstraint(Sketcher.Constraint("Horizontal", 63, 2, 66, 2))
sketch3.addConstraint(Sketcher.Constraint("Horizontal", 65, 2, 68, 2))
sketch3.addConstraint(Sketcher.Constraint("Horizontal", 67, 2, 70, 2))
sketch3.addConstraint(Sketcher.Constraint("Horizontal", 69, 2, 72, 2))
sketch3.addConstraint(Sketcher.Constraint("Horizontal", 71, 2, 74, 2))
sketch3.addConstraint(Sketcher.Constraint("Horizontal", 73, 2, 76, 2))
sketch3.addConstraint(Sketcher.Constraint("Horizontal", 75, 2, 78, 2))
sketch3.addConstraint(Sketcher.Constraint("Equal", 3, 5))
sketch3.addConstraint(Sketcher.Constraint("Equal", 7, 9))
sketch3.addConstraint(Sketcher.Constraint("Equal", 11, 13))
sketch3.addConstraint(Sketcher.Constraint("Equal", 15, 17))
sketch3.addConstraint(Sketcher.Constraint("Equal", 19, 21))
sketch3.addConstraint(Sketcher.Constraint("Equal", 23, 25))
sketch3.addConstraint(Sketcher.Constraint("Equal", 27, 29))
sketch3.addConstraint(Sketcher.Constraint("Equal", 31, 33))
sketch3.addConstraint(Sketcher.Constraint("Equal", 35, 37))
sketch3.addConstraint(Sketcher.Constraint("Equal", 39, 41))
sketch3.addConstraint(Sketcher.Constraint("Equal", 43, 45))
sketch3.addConstraint(Sketcher.Constraint("Equal", 47, 49))
sketch3.addConstraint(Sketcher.Constraint("Equal", 51, 53))
sketch3.addConstraint(Sketcher.Constraint("Equal", 55, 57))
sketch3.addConstraint(Sketcher.Constraint("Equal", 59, 61))
sketch3.addConstraint(Sketcher.Constraint("Equal", 63, 65))
sketch3.addConstraint(Sketcher.Constraint("Equal", 67, 69))
sketch3.addConstraint(Sketcher.Constraint("Equal", 71, 73))
sketch3.addConstraint(Sketcher.Constraint("Equal", 75, 77))
sketch3.addConstraint(Sketcher.Constraint("DistanceX", 1, 1, 1, 2, 6.5))
sketch3.addConstraint(Sketcher.Constraint("DistanceY", 0, 2, 0, 1, 10.5))
sketch3.addConstraint(Sketcher.Constraint("DistanceX", 0, 2, -1, 1, 13.25))
sketch3.addConstraint(Sketcher.Constraint("DistanceY", 0, 2, -1, 1, 5.25))
sketch3.addConstraint(Sketcher.Constraint("DistanceX", 4, 2, -1, 1, 25.25))
sketch3.addConstraint(Sketcher.Constraint("DistanceX", 8, 2, -1, 1, 37.25))
sketch3.addConstraint(Sketcher.Constraint("DistanceX", 12, 2, -1, 1, 49.25))
sketch3.addConstraint(Sketcher.Constraint("DistanceX", 16, 2, -1, 1, 61.25))
sketch3.addConstraint(Sketcher.Constraint("DistanceX", 20, 2, -1, 1, 73.25))
sketch3.addConstraint(Sketcher.Constraint("DistanceX", 24, 2, -1, 1, 85.25))
sketch3.addConstraint(Sketcher.Constraint("DistanceX", 28, 2, -1, 1, 97.25))
sketch3.addConstraint(Sketcher.Constraint("DistanceX", 32, 2, -1, 1, 109.25))
sketch3.addConstraint(Sketcher.Constraint("DistanceX", 36, 2, -1, 1, 121.25))
sketch3.addConstraint(Sketcher.Constraint("DistanceX", 40, 2, -1, 1, 133.25))
sketch3.addConstraint(Sketcher.Constraint("DistanceX", 44, 2, -1, 1, 145.25))
sketch3.addConstraint(Sketcher.Constraint("DistanceX", 48, 2, -1, 1, 157.25))
sketch3.addConstraint(Sketcher.Constraint("DistanceX", 52, 2, -1, 1, 169.25))
sketch3.addConstraint(Sketcher.Constraint("DistanceX", 56, 2, -1, 1, 181.25))
sketch3.addConstraint(Sketcher.Constraint("DistanceX", 60, 2, -1, 1, 193.25))
sketch3.addConstraint(Sketcher.Constraint("DistanceX", 64, 2, -1, 1, 205.25))
sketch3.addConstraint(Sketcher.Constraint("DistanceX", 68, 2, -1, 1, 217.25))
sketch3.addConstraint(Sketcher.Constraint("DistanceX", 72, 2, -1, 1, 229.25))
sketch3.addConstraint(Sketcher.Constraint("DistanceX", 76, 2, -1, 1, 241.25))
sketch3.setExpression("Constraints[217]", "Params.sketch3_width")
sketch3.setExpression("Constraints[218]", "Params.sketch3_height")
pocket1 = doc.addObject("PartDesign::Pocket", "Pocket")
body.addObject(pocket1)
pocket1.Profile = sketch3
pocket1.setExpression("Length", "Params.pocket1_length")

sketch4 = doc.addObject("Sketcher::SketchObject", "Sketch003")
body.addObject(sketch4)
sketch4.AttachmentSupport = (doc.XY_Plane, [""])
sketch4.MapMode = "FlatFace"
sketch4.addGeometry(Part.LineSegment(App.Vector(-28, 7, 0), App.Vector(-28, -7, 0)), False)
sketch4.addGeometry(Part.LineSegment(App.Vector(-28, -7, 0), App.Vector(0, -7, 0)), False)
sketch4.addGeometry(Part.LineSegment(App.Vector(0, -7, 0), App.Vector(0, 7, 0)), False)
sketch4.addGeometry(Part.LineSegment(App.Vector(0, 7, 0), App.Vector(-28, 7, 0)), False)
sketch4.addConstraint(Sketcher.Constraint("Coincident", 0, 2, 1, 1))
sketch4.addConstraint(Sketcher.Constraint("Coincident", 1, 2, 2, 1))
sketch4.addConstraint(Sketcher.Constraint("Coincident", 2, 2, 3, 1))
sketch4.addConstraint(Sketcher.Constraint("Coincident", 3, 2, 0, 1))
sketch4.addConstraint(Sketcher.Constraint("Vertical", 0))
sketch4.addConstraint(Sketcher.Constraint("Horizontal", 1))
sketch4.addConstraint(Sketcher.Constraint("Vertical", 2))
sketch4.addConstraint(Sketcher.Constraint("Horizontal", 3))
sketch4.addConstraint(Sketcher.Constraint("PointOnObject", 1, 2, -2))
sketch4.addConstraint(Sketcher.Constraint("DistanceY", 0, 2, 0, 1, 14.421839))
sketch4.addConstraint(Sketcher.Constraint("DistanceX", 1, 1, 1, 2, 28.428983))
sketch4.addConstraint(Sketcher.Constraint("DistanceY", -1, 1, 2, 2, 7.369111))
pad3 = doc.addObject("PartDesign::Pad", "Pad002")
body.addObject(pad3)
pad3.Profile = sketch4
pad3.setExpression("Length", "Params.pad3_length")

doc.recompute()
